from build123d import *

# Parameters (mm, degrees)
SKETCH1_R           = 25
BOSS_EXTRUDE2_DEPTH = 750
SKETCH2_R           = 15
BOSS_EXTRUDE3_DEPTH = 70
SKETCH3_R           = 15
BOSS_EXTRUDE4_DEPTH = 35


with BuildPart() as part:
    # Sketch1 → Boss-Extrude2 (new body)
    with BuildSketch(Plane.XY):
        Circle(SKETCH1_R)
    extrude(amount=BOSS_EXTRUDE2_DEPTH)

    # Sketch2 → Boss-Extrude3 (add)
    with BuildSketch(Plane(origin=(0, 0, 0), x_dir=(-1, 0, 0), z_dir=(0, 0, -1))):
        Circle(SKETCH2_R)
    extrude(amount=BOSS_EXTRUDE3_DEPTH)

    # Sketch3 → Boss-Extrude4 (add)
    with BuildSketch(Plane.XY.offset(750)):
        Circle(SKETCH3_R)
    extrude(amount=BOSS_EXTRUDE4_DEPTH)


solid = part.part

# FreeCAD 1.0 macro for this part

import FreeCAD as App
import Part
import Sketcher
from FreeCAD import Vector
Q = App.Units.Quantity

doc = App.newDocument("Part")
params = doc.addObject("Spreadsheet::Sheet", "Params")
for row, (alias, value) in enumerate([
    ("sketch1_diameter", "50 mm"),
    ("pad1_length", "750 mm"),
    ("sketch2_diameter", "30 mm"),
    ("pad2_length", "70 mm"),
    ("sketch3_diameter", "30 mm"),
    ("pad3_length", "35 mm"),
], start=1):
    params.set(f"A{row}", alias)
    params.set(f"B{row}", "=" + value)
    params.setAlias(f"B{row}", alias)

body = doc.addObject("PartDesign::Body", "Body")

# Sketch on XY plane
sketch1 = body.newObject("Sketcher::SketchObject", "Sketch")
sketch1.AttachmentSupport = (doc.getObject("XY_Plane"), [""])
sketch1.MapMode = "FlatFace"
sketch1.addGeometry(Part.Circle(Vector(0, 0, 0), Vector(0, 0, 1), 25), False)
sketch1.addConstraint([
    Sketcher.Constraint("Coincident", 0, 3, -1, 1),
    Sketcher.Constraint("Diameter", 0, Q("50 mm")),
])
sketch1.setExpression("Constraints[1]", "Params.sketch1_diameter")
pad1 = body.newObject("PartDesign::Pad", "Pad")
pad1.Profile = sketch1
pad1.setExpression("Length", "Params.pad1_length")

# Sketch on XY plane
sketch2 = body.newObject("Sketcher::SketchObject", "Sketch001")
sketch2.AttachmentSupport = (doc.getObject("XY_Plane"), [""])
sketch2.MapMode = "FlatFace"
sketch2.addGeometry(Part.Circle(Vector(0, 0, 0), Vector(0, 0, 1), 15), False)
sketch2.addConstraint([
    Sketcher.Constraint("Coincident", 0, 3, -1, 1),
    Sketcher.Constraint("Diameter", 0, Q("30 mm")),
])
sketch2.setExpression("Constraints[1]", "Params.sketch2_diameter")
pad2 = body.newObject("PartDesign::Pad", "Pad001")
pad2.Profile = sketch2
pad2.setExpression("Length", "Params.pad2_length")
pad2.Reversed = True

# Sketch on XY plane
sketch3 = body.newObject("Sketcher::SketchObject", "Sketch002")
sketch3.AttachmentSupport = (doc.getObject("XY_Plane"), [""])
sketch3.MapMode = "FlatFace"
sketch3.AttachmentOffset = App.Placement(Vector(0, 0, 750), App.Rotation())
sketch3.addGeometry(Part.Circle(Vector(0, 0, 0), Vector(0, 0, 1), 15), False)
sketch3.addConstraint([
    Sketcher.Constraint("Coincident", 0, 3, -1, 1),
    Sketcher.Constraint("Diameter", 0, Q("30 mm")),
])
sketch3.setExpression("Constraints[1]", "Params.sketch3_diameter")
pad3 = body.newObject("PartDesign::Pad", "Pad002")
pad3.Profile = sketch3
pad3.setExpression("Length", "Params.pad3_length")

doc.recompute()
